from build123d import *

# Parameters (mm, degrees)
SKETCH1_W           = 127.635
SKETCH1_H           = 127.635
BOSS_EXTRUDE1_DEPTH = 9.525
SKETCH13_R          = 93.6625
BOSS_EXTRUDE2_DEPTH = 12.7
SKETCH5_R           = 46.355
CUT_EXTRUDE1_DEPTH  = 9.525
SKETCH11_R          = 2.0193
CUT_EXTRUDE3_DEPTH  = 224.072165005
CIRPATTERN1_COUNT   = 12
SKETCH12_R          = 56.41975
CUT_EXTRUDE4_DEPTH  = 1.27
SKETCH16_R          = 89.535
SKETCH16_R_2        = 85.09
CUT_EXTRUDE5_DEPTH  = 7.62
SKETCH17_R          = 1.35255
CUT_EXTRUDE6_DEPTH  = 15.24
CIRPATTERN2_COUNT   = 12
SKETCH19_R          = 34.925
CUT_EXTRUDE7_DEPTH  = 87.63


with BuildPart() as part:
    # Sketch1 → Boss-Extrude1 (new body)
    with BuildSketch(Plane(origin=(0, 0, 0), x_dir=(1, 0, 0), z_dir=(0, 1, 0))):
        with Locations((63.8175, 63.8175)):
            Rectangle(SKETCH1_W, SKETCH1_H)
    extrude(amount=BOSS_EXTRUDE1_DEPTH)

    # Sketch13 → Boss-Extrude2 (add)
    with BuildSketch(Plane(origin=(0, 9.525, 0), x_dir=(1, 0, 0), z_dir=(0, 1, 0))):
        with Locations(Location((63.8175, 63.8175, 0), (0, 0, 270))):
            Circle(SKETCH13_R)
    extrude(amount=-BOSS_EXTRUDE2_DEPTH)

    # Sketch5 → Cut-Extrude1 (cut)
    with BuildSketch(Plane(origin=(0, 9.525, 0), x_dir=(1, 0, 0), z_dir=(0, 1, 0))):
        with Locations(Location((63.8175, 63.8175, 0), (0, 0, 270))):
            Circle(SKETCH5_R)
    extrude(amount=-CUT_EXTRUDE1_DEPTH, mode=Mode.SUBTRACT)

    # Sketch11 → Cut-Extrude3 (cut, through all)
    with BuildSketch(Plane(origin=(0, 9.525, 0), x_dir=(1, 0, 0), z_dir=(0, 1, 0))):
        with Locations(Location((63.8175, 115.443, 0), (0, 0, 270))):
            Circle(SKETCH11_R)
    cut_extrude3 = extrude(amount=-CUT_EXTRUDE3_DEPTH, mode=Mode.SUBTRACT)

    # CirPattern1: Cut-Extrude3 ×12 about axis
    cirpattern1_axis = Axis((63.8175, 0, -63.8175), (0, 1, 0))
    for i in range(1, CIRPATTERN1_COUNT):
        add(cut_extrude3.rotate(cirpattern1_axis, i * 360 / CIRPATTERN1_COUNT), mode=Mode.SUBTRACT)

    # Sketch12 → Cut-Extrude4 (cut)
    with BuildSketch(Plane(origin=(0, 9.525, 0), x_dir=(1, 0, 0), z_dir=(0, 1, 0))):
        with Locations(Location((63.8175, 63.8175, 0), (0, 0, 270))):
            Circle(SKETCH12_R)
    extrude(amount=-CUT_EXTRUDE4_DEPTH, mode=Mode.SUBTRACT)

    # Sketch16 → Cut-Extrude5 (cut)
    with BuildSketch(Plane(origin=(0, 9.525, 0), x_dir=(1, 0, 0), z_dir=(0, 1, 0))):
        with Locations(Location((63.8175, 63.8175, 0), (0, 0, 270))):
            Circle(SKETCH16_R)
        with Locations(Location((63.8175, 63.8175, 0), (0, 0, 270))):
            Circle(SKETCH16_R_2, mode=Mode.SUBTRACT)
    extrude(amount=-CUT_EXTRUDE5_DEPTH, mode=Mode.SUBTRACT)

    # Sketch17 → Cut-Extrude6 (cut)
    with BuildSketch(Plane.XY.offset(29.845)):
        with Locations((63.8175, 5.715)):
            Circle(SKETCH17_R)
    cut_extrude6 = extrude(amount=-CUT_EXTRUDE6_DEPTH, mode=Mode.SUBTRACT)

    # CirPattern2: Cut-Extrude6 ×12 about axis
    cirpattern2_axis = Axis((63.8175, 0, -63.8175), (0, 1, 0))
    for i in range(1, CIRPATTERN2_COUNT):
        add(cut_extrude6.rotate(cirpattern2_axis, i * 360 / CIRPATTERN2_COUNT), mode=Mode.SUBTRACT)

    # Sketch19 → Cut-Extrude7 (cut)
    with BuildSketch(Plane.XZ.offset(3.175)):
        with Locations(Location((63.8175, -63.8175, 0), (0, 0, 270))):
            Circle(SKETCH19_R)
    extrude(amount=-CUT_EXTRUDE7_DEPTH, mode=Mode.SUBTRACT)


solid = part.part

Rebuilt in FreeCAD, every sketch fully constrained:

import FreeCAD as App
import Part
import Sketcher
Q = App.Units.Quantity

doc = App.newDocument("Part")
body = doc.addObject("PartDesign::Body", "Body")

sketch1 = doc.addObject("Sketcher::SketchObject", "Sketch")
body.addObject(sketch1)
sketch1.AttachmentSupport = (doc.XZ_Plane, [""])
sketch1.MapMode = "FlatFace"
sketch1.addGeometry([
    Part.LineSegment(App.Vector(0, -128, 0), App.Vector(0, 0, 0)),
    Part.LineSegment(App.Vector(0, 0, 0), App.Vector(128, 0, 0)),
    Part.LineSegment(App.Vector(128, 0, 0), App.Vector(128, -128, 0)),
    Part.LineSegment(App.Vector(128, -128, 0), App.Vector(0, -128, 0)),
], False)
sketch1.addConstraint([
    Sketcher.Constraint("Coincident", 0, 2, 1, 1),
    Sketcher.Constraint("Coincident", 1, 2, 2, 1),
    Sketcher.Constraint("Coincident", 2, 2, 3, 1),
    Sketcher.Constraint("Coincident", 3, 2, 0, 1),
    Sketcher.Constraint("Vertical", 0),
    Sketcher.Constraint("Horizontal", 1),
    Sketcher.Constraint("Vertical", 2),
    Sketcher.Constraint("Horizontal", 3),
    Sketcher.Constraint("Coincident", 0, 2, -1, 1),
    Sketcher.Constraint("Equal", 3, 0),
    Sketcher.Constraint("DistanceX", 1, 1, 1, 2, Q("5.025 in")),
])
pad1 = doc.addObject("PartDesign::Pad", "Pad")
body.addObject(pad1)
pad1.Profile = sketch1
pad1.Length = Q("0.375 in")
pad1.Reversed = True

sketch2 = doc.addObject("Sketcher::SketchObject", "Sketch001")
body.addObject(sketch2)
sketch2.AttachmentSupport = (doc.XZ_Plane, [""])
sketch2.MapMode = "FlatFace"
sketch2.AttachmentOffset = App.Placement(App.Vector(0, 0, -0.375 * 25.4), App.Rotation())
sketch2.addGeometry(Part.Circle(App.Vector(64, -64, 0), App.Vector(0, 0, 1), 94), False)
sketch2.addConstraint([
    Sketcher.Constraint("Diameter", 0, Q("7.375 in")),
    Sketcher.Constraint("DistanceX", -1, 1, 0, 3, Q("2.5125 in")),
    Sketcher.Constraint("DistanceY", 0, 3, -1, 1, Q("2.5125 in")),
])
pad2 = doc.addObject("PartDesign::Pad", "Pad001")
body.addObject(pad2)
pad2.Profile = sketch2
pad2.Length = Q("0.5 in")

sketch3 = doc.addObject("Sketcher::SketchObject", "Sketch002")
body.addObject(sketch3)
sketch3.AttachmentSupport = (doc.XZ_Plane, [""])
sketch3.MapMode = "FlatFace"
sketch3.AttachmentOffset = App.Placement(App.Vector(0, 0, -0.375 * 25.4), App.Rotation())
sketch3.addGeometry(Part.Circle(App.Vector(64, -64, 0), App.Vector(0, 0, 1), 46), False)
sketch3.addConstraint([
    Sketcher.Constraint("Diameter", 0, Q("3.65 in")),
    Sketcher.Constraint("DistanceX", -1, 1, 0, 3, Q("2.5125 in")),
    Sketcher.Constraint("DistanceY", 0, 3, -1, 1, Q("2.5125 in")),
])
pocket1 = doc.addObject("PartDesign::Pocket", "Pocket")
body.addObject(pocket1)
pocket1.Profile = sketch3
pocket1.Length = Q("0.375 in")
pocket1.Reversed = True

sketch4 = doc.addObject("Sketcher::SketchObject", "Sketch003")
body.addObject(sketch4)
sketch4.AttachmentSupport = (doc.XZ_Plane, [""])
sketch4.MapMode = "FlatFace"
sketch4.AttachmentOffset = App.Placement(App.Vector(0, 0, -0.375 * 25.4), App.Rotation())
sketch4.addGeometry(Part.Circle(App.Vector(63.8, -115.4, 0), App.Vector(0, 0, 1), 2), False)
sketch4.addConstraint([
    Sketcher.Constraint("Diameter", 0, Q("0.159 in")),
    Sketcher.Constraint("DistanceY", 0, 3, -1, 1, Q("4.545 in")),
    Sketcher.Constraint("DistanceX", -1, 1, 0, 3, Q("2.5125 in")),
])
pocket2 = doc.addObject("PartDesign::Pocket", "Pocket001")
body.addObject(pocket2)
pocket2.Profile = sketch4
pocket2.Type = "ThroughAll"
pocket2.Reversed = True
doc.recompute()

datumline = doc.addObject("PartDesign::Line", "DatumLine")
body.addObject(datumline)
datumline.Placement = App.Placement(App.Vector(63.8175, 0, -63.8175), App.Rotation(App.Vector(0, 0, 1), App.Vector(0, 1, 0)))
polarpattern = doc.addObject("PartDesign::PolarPattern", "PolarPattern")
body.addObject(polarpattern)
polarpattern.Originals = [pocket2]
polarpattern.Axis = (datumline, [""])
polarpattern.Angle = 360
polarpattern.Occurrences = 12
body.Tip = polarpattern

sketch5 = doc.addObject("Sketcher::SketchObject", "Sketch004")
body.addObject(sketch5)
sketch5.AttachmentSupport = (doc.XZ_Plane, [""])
sketch5.MapMode = "FlatFace"
sketch5.AttachmentOffset = App.Placement(App.Vector(0, 0, -0.375 * 25.4), App.Rotation())
sketch5.addGeometry(Part.Circle(App.Vector(64, -64, 0), App.Vector(0, 0, 1), 56), False)
sketch5.addConstraint([
    Sketcher.Constraint("Diameter", 0, Q("4.4425 in")),
    Sketcher.Constraint("DistanceX", -1, 1, 0, 3, Q("2.5125 in")),
    Sketcher.Constraint("DistanceY", 0, 3, -1, 1, Q("2.5125 in")),
])
pocket3 = doc.addObject("PartDesign::Pocket", "Pocket002")
body.addObject(pocket3)
pocket3.Profile = sketch5
pocket3.Length = Q("0.05 in")
pocket3.Reversed = True

sketch6 = doc.addObject("Sketcher::SketchObject", "Sketch005")
body.addObject(sketch6)
sketch6.AttachmentSupport = (doc.XZ_Plane, [""])
sketch6.MapMode = "FlatFace"
sketch6.AttachmentOffset = App.Placement(App.Vector(0, 0, -0.375 * 25.4), App.Rotation())
sketch6.addGeometry([
    Part.Circle(App.Vector(64, -64, 0), App.Vector(0, 0, 1), 90),
    Part.Circle(App.Vector(64, -64, 0), App.Vector(0, 0, 1), 85),
], False)
sketch6.addConstraint([
    Sketcher.Constraint("Coincident", 1, 3, 0, 3),
    Sketcher.Constraint("Diameter", 1, Q("6.7 in")),
    Sketcher.Constraint("Diameter", 0, Q("7.05 in")),
    Sketcher.Constraint("DistanceX", -1, 1, 0, 3, Q("2.5125 in")),
    Sketcher.Constraint("DistanceY", 0, 3, -1, 1, Q("2.5125 in")),
])
pocket4 = doc.addObject("PartDesign::Pocket", "Pocket003")
body.addObject(pocket4)
pocket4.Profile = sketch6
pocket4.Length = Q("0.3 in")
pocket4.Reversed = True

sketch7 = doc.addObject("Sketcher::SketchObject", "Sketch006")
body.addObject(sketch7)
sketch7.AttachmentSupport = (doc.XY_Plane, [""])
sketch7.MapMode = "FlatFace"
sketch7.AttachmentOffset = App.Placement(App.Vector(0, 0, 1.175 * 25.4), App.Rotation())
sketch7.addGeometry(Part.Circle(App.Vector(63.8, 5.7, 0), App.Vector(0, 0, 1), 1.4), False)
sketch7.addConstraint([
    Sketcher.Constraint("Diameter", 0, Q("0.1065 in")),
    Sketcher.Constraint("DistanceY", -1, 1, 0, 3, Q("0.225 in")),
    Sketcher.Constraint("DistanceX", -1, 1, 0, 3, Q("2.5125 in")),
])
pocket5 = doc.addObject("PartDesign::Pocket", "Pocket004")
body.addObject(pocket5)
pocket5.Profile = sketch7
pocket5.Length = Q("0.6 in")
doc.recompute()

datumline2 = doc.addObject("PartDesign::Line", "DatumLine001")
body.addObject(datumline2)
datumline2.Placement = App.Placement(App.Vector(63.8175, 0, -63.8175), App.Rotation(App.Vector(0, 0, 1), App.Vector(0, 1, 0)))
polarpattern2 = doc.addObject("PartDesign::PolarPattern", "PolarPattern001")
body.addObject(polarpattern2)
polarpattern2.Originals = [pocket5]
polarpattern2.Axis = (datumline2, [""])
polarpattern2.Angle = 360
polarpattern2.Occurrences = 12
body.Tip = polarpattern2

sketch8 = doc.addObject("Sketcher::SketchObject", "Sketch007")
body.addObject(sketch8)
sketch8.AttachmentSupport = (doc.XZ_Plane, [""])
sketch8.MapMode = "FlatFace"
sketch8.AttachmentOffset = App.Placement(App.Vector(0, 0, 0.125 * 25.4), App.Rotation())
sketch8.addGeometry(Part.Circle(App.Vector(64, -64, 0), App.Vector(0, 0, 1), 35), False)
sketch8.addConstraint([
    Sketcher.Constraint("Diameter", 0, Q("2.75 in")),
    Sketcher.Constraint("DistanceX", -1, 1, 0, 3, Q("2.5125 in")),
    Sketcher.Constraint("DistanceY", 0, 3, -1, 1, Q("2.5125 in")),
])
pocket6 = doc.addObject("PartDesign::Pocket", "Pocket005")
body.addObject(pocket6)
pocket6.Profile = sketch8
pocket6.Length = Q("3.45 in")

doc.recompute()
